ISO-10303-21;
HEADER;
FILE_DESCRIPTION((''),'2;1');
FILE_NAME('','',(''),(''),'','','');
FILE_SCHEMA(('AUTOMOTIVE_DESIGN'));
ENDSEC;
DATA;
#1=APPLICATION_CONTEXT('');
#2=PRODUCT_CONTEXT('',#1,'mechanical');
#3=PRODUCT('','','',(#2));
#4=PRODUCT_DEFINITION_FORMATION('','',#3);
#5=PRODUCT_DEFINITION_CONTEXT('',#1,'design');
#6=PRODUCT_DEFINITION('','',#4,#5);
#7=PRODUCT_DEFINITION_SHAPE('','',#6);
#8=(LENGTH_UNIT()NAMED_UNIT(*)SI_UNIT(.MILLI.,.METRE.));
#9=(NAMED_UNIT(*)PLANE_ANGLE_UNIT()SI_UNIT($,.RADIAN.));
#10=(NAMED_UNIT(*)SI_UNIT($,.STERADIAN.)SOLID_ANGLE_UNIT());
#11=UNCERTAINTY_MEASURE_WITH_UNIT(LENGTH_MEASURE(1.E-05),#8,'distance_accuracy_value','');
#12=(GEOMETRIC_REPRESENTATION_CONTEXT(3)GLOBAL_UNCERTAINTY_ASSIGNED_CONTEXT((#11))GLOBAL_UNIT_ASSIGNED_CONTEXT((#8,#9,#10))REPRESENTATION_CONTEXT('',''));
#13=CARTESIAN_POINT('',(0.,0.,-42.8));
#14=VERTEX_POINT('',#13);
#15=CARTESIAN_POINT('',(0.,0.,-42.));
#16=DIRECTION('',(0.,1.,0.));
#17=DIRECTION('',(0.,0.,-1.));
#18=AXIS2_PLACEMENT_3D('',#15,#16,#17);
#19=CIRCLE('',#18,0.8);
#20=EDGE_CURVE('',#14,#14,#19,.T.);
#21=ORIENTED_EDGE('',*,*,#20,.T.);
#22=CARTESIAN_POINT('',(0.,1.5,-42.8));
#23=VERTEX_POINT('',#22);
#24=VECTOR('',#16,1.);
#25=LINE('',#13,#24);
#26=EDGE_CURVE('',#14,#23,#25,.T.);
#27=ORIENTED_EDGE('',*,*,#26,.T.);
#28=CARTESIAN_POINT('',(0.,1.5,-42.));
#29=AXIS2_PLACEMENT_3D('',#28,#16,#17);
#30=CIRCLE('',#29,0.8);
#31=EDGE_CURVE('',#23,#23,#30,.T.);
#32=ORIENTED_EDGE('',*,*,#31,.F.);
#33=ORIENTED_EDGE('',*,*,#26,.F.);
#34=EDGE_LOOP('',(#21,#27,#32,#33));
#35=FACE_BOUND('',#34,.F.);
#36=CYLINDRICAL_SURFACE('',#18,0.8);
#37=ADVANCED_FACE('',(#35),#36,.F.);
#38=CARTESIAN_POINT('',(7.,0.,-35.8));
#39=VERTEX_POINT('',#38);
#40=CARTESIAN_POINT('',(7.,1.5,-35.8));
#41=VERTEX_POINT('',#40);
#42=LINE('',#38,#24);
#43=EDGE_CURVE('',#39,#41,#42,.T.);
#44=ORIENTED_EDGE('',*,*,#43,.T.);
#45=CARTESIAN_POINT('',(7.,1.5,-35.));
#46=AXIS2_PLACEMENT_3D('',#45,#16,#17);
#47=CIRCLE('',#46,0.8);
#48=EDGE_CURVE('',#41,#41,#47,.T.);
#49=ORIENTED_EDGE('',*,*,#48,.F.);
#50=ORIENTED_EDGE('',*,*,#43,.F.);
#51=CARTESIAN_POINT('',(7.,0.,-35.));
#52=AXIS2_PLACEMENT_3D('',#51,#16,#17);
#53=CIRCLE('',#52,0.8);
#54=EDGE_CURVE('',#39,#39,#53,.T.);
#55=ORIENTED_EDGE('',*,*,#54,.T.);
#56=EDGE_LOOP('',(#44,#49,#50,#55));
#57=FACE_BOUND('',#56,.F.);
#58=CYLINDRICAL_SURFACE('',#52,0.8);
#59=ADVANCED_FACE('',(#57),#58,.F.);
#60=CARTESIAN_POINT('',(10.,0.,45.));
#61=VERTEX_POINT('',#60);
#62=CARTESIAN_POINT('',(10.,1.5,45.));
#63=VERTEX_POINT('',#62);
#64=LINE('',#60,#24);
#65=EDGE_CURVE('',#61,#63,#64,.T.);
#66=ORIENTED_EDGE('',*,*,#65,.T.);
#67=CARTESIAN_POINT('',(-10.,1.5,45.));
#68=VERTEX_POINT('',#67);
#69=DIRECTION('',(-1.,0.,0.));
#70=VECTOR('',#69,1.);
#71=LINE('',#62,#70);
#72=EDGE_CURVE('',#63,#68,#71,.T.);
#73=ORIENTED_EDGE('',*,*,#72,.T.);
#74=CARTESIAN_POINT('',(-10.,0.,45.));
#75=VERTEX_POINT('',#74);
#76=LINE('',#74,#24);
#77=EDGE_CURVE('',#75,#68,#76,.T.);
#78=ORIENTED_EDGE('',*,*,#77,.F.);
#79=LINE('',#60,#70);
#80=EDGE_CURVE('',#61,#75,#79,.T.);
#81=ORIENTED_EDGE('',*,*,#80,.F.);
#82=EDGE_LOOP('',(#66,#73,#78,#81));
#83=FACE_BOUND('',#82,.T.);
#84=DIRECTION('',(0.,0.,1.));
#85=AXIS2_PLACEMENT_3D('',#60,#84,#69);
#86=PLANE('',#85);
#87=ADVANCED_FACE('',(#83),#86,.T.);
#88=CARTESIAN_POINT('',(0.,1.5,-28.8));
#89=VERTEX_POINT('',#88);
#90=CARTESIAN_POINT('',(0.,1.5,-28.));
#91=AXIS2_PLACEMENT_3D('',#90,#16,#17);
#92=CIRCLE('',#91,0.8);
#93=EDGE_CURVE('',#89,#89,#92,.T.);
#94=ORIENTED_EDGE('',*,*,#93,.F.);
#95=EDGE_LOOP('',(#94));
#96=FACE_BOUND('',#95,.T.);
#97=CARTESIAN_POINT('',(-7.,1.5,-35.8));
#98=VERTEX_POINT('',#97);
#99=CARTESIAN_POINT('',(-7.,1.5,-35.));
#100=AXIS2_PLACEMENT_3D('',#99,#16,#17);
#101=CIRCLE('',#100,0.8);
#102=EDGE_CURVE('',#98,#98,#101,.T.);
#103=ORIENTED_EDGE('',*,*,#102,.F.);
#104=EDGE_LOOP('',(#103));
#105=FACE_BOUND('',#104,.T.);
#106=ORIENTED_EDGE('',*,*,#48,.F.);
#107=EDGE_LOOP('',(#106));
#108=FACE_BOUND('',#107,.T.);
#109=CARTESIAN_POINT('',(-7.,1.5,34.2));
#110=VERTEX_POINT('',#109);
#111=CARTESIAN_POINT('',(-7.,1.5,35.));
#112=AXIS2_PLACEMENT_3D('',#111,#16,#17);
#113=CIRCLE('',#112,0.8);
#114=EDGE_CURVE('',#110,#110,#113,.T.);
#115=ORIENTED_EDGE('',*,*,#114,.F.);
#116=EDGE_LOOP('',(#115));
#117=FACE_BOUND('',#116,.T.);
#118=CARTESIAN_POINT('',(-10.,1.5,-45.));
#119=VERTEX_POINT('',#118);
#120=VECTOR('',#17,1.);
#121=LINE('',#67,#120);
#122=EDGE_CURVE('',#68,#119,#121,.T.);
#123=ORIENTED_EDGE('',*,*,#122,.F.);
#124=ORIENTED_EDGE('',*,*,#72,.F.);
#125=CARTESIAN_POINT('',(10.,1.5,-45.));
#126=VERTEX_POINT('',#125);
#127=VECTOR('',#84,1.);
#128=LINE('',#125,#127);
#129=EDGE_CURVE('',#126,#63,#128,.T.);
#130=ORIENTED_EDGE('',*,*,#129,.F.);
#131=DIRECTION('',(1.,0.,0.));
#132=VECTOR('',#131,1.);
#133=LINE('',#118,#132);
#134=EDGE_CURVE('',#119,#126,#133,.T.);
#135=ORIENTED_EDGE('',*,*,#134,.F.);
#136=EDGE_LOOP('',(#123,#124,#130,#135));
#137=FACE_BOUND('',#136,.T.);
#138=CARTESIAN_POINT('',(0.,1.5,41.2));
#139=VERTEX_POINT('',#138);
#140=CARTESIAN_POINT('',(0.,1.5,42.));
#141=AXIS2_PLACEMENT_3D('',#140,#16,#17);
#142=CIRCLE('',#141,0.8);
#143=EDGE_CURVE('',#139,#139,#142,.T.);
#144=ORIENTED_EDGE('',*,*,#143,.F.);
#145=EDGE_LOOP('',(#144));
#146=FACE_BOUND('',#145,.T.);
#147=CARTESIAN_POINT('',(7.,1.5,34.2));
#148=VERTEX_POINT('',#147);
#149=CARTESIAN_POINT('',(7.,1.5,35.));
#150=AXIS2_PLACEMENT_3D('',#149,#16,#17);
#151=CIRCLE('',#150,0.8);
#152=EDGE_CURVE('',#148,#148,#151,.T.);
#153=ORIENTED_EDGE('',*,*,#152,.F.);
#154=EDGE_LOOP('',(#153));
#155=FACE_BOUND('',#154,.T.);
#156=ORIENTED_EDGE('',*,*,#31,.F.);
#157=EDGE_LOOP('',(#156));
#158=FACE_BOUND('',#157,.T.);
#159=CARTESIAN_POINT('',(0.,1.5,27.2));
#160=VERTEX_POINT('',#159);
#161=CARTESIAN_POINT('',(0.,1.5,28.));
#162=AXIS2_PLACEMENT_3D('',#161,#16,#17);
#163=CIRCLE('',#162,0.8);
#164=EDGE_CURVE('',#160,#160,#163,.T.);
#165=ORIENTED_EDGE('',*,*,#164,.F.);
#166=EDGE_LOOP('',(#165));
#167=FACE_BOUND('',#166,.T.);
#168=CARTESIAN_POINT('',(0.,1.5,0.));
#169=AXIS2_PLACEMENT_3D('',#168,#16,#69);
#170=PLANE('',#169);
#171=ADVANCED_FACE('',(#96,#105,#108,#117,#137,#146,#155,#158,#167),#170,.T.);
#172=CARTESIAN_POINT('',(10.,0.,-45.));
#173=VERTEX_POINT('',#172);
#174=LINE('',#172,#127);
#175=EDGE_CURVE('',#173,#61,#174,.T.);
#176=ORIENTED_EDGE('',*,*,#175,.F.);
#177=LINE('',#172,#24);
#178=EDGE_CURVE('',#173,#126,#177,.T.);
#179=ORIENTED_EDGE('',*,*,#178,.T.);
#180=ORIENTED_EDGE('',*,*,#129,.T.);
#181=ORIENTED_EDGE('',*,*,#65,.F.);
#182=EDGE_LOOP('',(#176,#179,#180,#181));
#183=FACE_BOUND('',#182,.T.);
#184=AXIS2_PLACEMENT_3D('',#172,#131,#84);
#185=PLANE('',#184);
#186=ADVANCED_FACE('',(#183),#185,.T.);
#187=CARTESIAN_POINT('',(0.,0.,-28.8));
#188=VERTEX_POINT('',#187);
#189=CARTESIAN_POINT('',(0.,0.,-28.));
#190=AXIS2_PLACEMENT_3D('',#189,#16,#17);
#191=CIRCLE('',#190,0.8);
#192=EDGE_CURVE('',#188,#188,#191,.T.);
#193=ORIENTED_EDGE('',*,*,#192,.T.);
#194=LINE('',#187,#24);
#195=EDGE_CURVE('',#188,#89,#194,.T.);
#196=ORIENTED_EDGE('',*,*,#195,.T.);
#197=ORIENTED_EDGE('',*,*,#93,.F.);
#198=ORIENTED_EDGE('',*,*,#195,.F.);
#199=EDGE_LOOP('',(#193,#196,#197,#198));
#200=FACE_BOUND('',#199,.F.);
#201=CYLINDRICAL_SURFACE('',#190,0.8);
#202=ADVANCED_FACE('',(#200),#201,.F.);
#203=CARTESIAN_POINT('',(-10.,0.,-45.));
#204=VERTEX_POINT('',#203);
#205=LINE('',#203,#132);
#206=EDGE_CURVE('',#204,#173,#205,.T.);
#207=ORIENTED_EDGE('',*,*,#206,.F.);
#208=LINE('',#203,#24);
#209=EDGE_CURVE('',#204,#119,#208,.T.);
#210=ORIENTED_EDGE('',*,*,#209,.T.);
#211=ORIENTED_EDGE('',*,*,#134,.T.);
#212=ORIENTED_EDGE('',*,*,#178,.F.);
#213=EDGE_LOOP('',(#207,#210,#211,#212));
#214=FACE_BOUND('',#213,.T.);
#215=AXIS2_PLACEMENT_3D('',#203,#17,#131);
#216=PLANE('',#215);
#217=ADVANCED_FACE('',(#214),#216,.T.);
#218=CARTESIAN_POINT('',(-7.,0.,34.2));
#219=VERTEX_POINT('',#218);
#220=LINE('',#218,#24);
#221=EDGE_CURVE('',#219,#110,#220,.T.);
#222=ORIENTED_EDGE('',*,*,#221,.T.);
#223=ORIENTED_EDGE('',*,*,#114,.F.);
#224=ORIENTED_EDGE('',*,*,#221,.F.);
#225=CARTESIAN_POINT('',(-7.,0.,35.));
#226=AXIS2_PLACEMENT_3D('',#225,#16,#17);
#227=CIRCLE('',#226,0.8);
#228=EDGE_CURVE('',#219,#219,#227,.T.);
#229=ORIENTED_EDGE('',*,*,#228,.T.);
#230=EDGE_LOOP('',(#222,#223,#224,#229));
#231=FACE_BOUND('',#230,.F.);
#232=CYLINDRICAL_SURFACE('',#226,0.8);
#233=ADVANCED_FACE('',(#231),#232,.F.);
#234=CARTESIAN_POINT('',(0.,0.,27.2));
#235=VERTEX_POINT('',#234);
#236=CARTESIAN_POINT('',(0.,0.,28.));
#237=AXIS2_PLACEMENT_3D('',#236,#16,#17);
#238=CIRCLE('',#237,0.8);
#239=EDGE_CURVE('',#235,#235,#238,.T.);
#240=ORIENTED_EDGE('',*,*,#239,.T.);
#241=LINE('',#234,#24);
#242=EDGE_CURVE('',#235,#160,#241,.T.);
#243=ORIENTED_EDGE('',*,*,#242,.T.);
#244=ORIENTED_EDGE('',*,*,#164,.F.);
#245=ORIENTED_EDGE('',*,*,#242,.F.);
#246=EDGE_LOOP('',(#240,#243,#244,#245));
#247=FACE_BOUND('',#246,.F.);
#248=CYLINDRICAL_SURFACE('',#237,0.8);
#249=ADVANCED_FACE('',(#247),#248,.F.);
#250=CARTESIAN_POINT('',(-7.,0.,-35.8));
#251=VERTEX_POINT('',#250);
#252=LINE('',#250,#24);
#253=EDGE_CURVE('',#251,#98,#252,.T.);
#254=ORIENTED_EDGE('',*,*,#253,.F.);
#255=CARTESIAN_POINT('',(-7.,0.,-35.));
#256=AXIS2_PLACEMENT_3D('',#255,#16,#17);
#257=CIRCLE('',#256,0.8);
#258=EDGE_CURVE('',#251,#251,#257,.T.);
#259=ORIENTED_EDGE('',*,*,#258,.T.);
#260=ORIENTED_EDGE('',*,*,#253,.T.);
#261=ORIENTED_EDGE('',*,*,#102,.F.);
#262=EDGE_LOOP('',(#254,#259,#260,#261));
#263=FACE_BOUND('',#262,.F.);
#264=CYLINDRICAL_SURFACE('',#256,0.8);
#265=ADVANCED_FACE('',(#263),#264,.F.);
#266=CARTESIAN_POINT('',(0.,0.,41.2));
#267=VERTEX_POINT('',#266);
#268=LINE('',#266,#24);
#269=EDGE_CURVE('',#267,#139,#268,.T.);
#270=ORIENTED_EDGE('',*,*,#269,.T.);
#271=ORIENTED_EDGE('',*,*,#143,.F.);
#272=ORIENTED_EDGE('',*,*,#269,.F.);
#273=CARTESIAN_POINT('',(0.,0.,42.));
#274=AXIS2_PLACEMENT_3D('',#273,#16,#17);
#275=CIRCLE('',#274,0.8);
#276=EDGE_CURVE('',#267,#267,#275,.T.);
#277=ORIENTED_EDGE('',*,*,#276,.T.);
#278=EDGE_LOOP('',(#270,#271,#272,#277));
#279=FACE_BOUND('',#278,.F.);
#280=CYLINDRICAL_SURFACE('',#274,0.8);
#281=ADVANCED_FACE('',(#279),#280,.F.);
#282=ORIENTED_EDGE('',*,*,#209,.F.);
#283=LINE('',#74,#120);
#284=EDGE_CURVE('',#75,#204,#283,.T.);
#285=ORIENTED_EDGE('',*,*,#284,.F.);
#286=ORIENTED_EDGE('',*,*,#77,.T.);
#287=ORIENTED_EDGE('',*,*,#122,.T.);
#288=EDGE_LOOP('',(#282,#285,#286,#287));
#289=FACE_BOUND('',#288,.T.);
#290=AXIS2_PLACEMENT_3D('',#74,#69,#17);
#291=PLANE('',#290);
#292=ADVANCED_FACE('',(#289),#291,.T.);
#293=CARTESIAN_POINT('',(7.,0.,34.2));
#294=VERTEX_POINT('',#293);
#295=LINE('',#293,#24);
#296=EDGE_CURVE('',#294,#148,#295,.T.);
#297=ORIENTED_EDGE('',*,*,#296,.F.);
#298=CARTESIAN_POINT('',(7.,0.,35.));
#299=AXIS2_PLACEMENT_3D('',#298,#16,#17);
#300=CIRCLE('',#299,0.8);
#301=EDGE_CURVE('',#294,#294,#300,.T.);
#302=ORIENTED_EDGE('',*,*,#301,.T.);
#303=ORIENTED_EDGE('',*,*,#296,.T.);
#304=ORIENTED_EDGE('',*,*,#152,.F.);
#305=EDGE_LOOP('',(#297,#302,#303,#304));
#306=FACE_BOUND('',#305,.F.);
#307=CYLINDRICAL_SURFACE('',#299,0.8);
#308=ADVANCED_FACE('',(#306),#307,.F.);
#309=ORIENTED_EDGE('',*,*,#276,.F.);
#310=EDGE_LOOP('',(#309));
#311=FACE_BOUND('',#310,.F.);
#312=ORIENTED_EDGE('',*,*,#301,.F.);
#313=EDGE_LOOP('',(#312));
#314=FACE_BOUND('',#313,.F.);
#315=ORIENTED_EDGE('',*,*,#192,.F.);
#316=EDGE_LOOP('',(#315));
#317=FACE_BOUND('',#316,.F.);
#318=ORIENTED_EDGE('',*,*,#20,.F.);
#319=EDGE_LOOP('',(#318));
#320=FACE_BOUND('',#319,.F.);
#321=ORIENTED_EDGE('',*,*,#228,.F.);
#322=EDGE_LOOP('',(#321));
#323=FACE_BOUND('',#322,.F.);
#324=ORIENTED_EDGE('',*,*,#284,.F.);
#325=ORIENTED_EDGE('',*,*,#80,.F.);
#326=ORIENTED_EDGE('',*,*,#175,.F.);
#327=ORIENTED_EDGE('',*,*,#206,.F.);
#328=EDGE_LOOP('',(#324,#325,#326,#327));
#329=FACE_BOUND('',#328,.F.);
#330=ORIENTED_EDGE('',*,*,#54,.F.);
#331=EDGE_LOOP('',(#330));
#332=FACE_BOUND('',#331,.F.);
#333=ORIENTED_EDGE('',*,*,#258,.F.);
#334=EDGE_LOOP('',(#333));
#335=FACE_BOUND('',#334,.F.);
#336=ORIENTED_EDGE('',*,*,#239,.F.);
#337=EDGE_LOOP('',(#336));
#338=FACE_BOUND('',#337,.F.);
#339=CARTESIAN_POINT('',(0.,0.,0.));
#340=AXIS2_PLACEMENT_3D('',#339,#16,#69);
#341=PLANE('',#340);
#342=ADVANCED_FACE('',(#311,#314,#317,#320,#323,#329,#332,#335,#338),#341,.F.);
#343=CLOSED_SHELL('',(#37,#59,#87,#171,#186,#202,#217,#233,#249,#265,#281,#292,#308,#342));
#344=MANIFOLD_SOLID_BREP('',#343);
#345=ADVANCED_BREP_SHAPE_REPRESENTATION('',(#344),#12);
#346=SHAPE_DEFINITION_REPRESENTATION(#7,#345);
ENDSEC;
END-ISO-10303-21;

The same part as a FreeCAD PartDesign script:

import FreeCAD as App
import Part
import Sketcher

V = App.Vector
Q = App.Units.Quantity


def add_polygon(sketch, points):
    """Adds a closed chain of lines whose ends are joined by coincident constraints."""
    first, n = sketch.GeometryCount, len(points)
    for a, b in zip(points, points[1:] + points[:1]):
        sketch.addGeometry(Part.LineSegment(App.Vector(*a, 0), App.Vector(*b, 0)), False)
    for i in range(n):
        sketch.addConstraint(Sketcher.Constraint("Coincident", first + i, 2, first + (i + 1) % n, 1))

doc = App.newDocument("Part")
params = doc.addObject("Spreadsheet::Sheet", "Params")
for row, (alias, value) in enumerate([
    ("sketch1_width", "20 mm"),
    ("sketch1_height", "90 mm"),
    ("pad1_length", "1.5 mm"),
    ("sketch2_diameter", "1.6 mm"),
    ("hole_diameter", "1.6 mm"),
    ("hole_depth", "1.5 mm"),
], start=1):
    params.set(f"A{row}", alias)
    params.set(f"B{row}", "=" + value)
    params.setAlias(f"B{row}", alias)

body = doc.addObject("PartDesign::Body", "Body")

sketch1 = body.newObject("Sketcher::SketchObject", "Sketch")
sketch1.AttachmentSupport = (doc.getObject("XZ_Plane"), [""])
sketch1.MapMode = "FlatFace"
add_polygon(sketch1, [(10, -45), (-10, -45), (-10, 45), (10, 45)])
sketch1.addConstraint([
    Sketcher.Constraint("Horizontal", 0),
    Sketcher.Constraint("Vertical", 1),
    Sketcher.Constraint("Horizontal", 2),
    Sketcher.Constraint("Vertical", 3),
    Sketcher.Constraint("Symmetric", 0, 2, 2, 2, -1, 1),
    Sketcher.Constraint("DistanceX", 0, 2, 0, 1, Q("20 mm")),
    Sketcher.Constraint("DistanceY", 1, 1, 1, 2, Q("90 mm")),
])
sketch1.setExpression("Constraints[9]", "Params.sketch1_width")
sketch1.setExpression("Constraints[10]", "Params.sketch1_height")
pad1 = body.newObject("PartDesign::Pad", "Pad")
pad1.Profile = sketch1
pad1.setExpression("Length", "Params.pad1_length")
pad1.Reversed = True

sketch2 = body.newObject("Sketcher::SketchObject", "Sketch001")
sketch2.AttachmentSupport = (doc.getObject("XZ_Plane"), [""])
sketch2.MapMode = "FlatFace"
sketch2.addGeometry([
    Part.Circle(V(0, 42, 0), V(0, 0, 1), 0.8),
    Part.Circle(V(-7, 35, 0), V(0, 0, 1), 0.8),
    Part.Circle(V(0, 28, 0), V(0, 0, 1), 0.8),
    Part.Circle(V(7, 35, 0), V(0, 0, 1), 0.8),
    Part.Circle(V(0, -28, 0), V(0, 0, 1), 0.8),
    Part.Circle(V(-7, -35, 0), V(0, 0, 1), 0.8),
    Part.Circle(V(0, -42, 0), V(0, 0, 1), 0.8),
    Part.Circle(V(7, -35, 0), V(0, 0, 1), 0.8),
], False)
sketch2.addConstraint([
    Sketcher.Constraint("Equal", 0, 1),
    Sketcher.Constraint("Equal", 1, 2),
    Sketcher.Constraint("Equal", 2, 3),
    Sketcher.Constraint("Equal", 3, 4),
    Sketcher.Constraint("Equal", 4, 5),
    Sketcher.Constraint("Equal", 5, 6),
    Sketcher.Constraint("Equal", 6, 7),
    Sketcher.Constraint("Symmetric", 2, 3, 4, 3, -1, 1),
    Sketcher.Constraint("Symmetric", 3, 3, 5, 3, -1, 1),
    Sketcher.Constraint("Symmetric", 0, 3, 6, 3, -1, 1),
    Sketcher.Constraint("Symmetric", 1, 3, 7, 3, -1, 1),
    Sketcher.Constraint("Symmetric", 1, 3, 3, 3, -2),
    Sketcher.Constraint("PointOnObject", 0, 3, -2),
    Sketcher.Constraint("PointOnObject", 2, 3, -2),
    Sketcher.Constraint("Diameter", 0, Q("1.6 mm")),
    Sketcher.Constraint("DistanceY", -1, 1, 0, 3, Q("42 mm")),
    Sketcher.Constraint("DistanceX", 1, 3, -1, 1, Q("7 mm")),
    Sketcher.Constraint("DistanceY", -1, 1, 1, 3, Q("35 mm")),
    Sketcher.Constraint("DistanceY", -1, 1, 2, 3, Q("28 mm")),
])
sketch2.setExpression("Constraints[14]", "Params.sketch2_diameter")
doc.recompute()
hole = body.newObject("PartDesign::Hole", "Hole")
hole.Profile = sketch2
hole.ThreadType = "None"
hole.setExpression("Diameter", "Params.hole_diameter")
hole.DepthType = "Dimension"
hole.setExpression("Depth", "Params.hole_depth")
hole.DrillPoint = "Flat"

doc.recompute()
